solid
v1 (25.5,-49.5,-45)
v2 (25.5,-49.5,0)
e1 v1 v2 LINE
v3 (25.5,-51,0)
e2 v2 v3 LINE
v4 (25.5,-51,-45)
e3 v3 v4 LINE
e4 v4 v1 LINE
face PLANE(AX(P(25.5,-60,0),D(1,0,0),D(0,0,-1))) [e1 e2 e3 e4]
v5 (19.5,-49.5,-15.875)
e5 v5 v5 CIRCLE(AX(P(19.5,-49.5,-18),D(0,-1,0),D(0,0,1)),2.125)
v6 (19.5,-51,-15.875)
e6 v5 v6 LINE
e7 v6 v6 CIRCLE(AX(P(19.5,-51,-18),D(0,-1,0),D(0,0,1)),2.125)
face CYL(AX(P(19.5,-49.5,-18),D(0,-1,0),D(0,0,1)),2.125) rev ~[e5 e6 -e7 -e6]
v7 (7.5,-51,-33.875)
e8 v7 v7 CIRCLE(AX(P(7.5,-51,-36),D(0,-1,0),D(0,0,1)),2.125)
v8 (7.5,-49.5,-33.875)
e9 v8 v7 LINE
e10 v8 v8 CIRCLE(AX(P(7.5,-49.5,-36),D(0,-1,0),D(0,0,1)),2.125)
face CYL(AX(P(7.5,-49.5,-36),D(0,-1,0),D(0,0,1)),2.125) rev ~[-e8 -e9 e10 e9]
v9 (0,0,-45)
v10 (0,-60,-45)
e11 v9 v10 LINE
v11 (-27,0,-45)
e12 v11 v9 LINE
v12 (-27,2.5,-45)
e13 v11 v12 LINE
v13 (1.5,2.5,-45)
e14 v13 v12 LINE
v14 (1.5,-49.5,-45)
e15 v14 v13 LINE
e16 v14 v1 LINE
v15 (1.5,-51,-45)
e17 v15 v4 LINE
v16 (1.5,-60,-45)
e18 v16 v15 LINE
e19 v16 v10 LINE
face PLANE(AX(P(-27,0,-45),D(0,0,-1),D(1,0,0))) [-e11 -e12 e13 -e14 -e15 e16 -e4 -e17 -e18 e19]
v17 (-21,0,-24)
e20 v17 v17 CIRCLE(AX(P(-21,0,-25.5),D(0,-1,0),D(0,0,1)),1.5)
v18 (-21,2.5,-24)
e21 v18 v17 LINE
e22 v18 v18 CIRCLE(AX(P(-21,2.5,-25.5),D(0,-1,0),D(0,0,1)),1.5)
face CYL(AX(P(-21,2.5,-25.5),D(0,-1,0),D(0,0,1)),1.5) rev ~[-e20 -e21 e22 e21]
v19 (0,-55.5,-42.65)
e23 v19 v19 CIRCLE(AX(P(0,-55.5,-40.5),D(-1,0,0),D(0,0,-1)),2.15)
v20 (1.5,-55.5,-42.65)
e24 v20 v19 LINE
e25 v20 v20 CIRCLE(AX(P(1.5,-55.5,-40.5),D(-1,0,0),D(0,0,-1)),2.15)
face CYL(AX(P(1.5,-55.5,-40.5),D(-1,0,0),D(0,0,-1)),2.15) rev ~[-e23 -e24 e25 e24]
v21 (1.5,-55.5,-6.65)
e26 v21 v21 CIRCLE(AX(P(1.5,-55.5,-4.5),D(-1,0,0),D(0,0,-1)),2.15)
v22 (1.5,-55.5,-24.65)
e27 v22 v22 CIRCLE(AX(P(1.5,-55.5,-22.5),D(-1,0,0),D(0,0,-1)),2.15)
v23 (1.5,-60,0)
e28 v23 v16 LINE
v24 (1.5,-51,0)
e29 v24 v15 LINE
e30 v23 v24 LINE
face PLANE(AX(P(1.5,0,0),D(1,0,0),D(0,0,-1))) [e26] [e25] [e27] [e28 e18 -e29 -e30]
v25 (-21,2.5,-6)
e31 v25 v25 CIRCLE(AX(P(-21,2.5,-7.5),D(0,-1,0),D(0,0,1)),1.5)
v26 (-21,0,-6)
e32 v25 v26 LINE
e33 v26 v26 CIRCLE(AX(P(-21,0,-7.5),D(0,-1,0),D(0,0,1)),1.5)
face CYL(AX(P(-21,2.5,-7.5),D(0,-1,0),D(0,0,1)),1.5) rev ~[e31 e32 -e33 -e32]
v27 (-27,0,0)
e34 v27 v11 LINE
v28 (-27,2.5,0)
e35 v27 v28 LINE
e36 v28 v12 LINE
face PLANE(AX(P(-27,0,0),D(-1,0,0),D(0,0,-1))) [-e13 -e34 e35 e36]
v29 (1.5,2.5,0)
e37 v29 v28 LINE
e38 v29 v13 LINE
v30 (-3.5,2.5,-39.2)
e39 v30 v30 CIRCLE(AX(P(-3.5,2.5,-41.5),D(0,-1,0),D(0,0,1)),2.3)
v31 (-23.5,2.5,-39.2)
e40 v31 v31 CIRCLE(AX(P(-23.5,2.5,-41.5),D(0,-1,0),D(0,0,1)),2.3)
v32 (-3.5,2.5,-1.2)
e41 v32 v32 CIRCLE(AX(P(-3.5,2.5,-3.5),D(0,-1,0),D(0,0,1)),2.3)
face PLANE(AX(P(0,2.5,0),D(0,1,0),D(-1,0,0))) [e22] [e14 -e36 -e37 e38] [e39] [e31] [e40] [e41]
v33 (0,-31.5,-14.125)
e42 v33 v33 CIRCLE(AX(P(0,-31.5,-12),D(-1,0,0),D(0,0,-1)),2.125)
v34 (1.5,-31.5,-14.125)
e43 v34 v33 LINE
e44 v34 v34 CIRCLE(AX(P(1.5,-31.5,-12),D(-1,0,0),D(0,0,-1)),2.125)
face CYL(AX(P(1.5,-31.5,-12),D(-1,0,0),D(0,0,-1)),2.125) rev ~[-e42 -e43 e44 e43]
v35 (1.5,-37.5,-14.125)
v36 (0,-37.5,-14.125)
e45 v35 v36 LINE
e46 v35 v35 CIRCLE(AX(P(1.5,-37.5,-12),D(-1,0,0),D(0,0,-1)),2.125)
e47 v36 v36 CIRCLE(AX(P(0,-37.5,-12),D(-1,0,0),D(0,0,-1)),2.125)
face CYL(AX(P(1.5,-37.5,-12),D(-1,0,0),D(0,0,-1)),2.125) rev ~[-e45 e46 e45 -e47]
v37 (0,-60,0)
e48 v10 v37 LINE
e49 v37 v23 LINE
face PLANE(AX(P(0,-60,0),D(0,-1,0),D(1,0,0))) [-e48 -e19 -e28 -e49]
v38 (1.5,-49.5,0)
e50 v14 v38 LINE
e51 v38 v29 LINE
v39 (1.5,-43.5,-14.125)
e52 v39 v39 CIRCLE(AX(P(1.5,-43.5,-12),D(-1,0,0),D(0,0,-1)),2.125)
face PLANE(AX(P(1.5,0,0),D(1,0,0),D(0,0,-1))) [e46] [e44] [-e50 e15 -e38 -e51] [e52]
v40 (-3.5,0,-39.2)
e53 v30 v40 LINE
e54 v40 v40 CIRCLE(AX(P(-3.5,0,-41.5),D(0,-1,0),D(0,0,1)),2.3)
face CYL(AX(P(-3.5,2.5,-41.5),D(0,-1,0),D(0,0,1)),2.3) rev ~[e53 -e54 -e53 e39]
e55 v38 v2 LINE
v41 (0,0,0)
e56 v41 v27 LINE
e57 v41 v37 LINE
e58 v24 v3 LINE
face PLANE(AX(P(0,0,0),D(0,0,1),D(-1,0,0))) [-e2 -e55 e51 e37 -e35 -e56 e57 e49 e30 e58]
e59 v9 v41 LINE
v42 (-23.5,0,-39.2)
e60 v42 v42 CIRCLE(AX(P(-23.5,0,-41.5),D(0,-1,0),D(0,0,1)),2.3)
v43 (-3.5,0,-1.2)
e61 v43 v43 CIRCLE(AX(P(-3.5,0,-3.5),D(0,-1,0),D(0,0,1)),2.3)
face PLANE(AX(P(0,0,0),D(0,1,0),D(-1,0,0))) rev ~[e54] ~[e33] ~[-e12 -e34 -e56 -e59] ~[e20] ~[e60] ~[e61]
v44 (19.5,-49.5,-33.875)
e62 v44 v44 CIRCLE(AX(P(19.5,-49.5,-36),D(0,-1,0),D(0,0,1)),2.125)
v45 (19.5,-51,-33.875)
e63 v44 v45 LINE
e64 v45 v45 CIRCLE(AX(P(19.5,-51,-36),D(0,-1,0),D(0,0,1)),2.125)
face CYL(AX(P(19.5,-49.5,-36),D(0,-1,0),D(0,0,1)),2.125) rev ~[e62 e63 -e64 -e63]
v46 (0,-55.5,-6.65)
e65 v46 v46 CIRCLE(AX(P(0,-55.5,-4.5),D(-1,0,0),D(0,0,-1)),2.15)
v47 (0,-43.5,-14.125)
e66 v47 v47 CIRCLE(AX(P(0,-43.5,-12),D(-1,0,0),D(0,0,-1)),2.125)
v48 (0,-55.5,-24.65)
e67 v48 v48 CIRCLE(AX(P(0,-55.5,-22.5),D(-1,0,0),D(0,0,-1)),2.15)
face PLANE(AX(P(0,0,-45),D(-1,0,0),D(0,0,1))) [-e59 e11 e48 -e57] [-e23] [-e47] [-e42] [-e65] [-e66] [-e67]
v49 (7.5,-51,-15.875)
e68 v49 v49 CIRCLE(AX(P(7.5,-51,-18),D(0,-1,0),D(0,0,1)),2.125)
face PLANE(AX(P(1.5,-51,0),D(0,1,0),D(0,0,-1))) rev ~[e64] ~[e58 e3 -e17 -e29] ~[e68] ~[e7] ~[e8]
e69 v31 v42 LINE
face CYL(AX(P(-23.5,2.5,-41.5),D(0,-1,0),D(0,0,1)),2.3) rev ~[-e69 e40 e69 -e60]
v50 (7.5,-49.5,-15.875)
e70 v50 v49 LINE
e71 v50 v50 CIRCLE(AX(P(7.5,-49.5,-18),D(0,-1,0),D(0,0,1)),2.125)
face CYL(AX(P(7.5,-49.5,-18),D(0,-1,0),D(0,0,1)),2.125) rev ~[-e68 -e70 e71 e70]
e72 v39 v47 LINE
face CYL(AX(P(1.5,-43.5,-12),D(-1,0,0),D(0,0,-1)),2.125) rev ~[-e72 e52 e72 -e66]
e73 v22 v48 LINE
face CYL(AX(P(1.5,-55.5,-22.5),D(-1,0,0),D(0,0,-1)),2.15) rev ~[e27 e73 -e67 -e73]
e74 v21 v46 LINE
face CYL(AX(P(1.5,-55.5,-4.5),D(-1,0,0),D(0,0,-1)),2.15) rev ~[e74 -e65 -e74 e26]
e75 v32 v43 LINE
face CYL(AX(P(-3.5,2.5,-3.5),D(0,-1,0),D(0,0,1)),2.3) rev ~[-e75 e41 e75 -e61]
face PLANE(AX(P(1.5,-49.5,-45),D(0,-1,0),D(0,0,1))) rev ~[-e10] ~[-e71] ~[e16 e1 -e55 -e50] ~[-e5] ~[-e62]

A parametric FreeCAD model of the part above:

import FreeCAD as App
import Part
import Sketcher
Q = App.Units.Quantity

doc = App.newDocument("Part")
body = doc.addObject("PartDesign::Body", "Body")

# Sketch on XZ plane
sketch1 = doc.addObject("Sketcher::SketchObject", "Sketch")
body.addObject(sketch1)
sketch1.AttachmentSupport = (doc.XZ_Plane, [""])
sketch1.MapMode = "FlatFace"
sketch1.addGeometry(Part.LineSegment(App.Vector(-27, 0, 0), App.Vector(0, 0, 0)), False)
sketch1.addGeometry(Part.LineSegment(App.Vector(0, 0, 0), App.Vector(0, -45, 0)), False)
sketch1.addGeometry(Part.LineSegment(App.Vector(0, -45, 0), App.Vector(-27, -45, 0)), False)
sketch1.addGeometry(Part.LineSegment(App.Vector(-27, -45, 0), App.Vector(-27, 0, 0)), False)
sketch1.addConstraint(Sketcher.Constraint("Coincident", 0, 2, 1, 1))
sketch1.addConstraint(Sketcher.Constraint("Coincident", 1, 2, 2, 1))
sketch1.addConstraint(Sketcher.Constraint("Coincident", 2, 2, 3, 1))
sketch1.addConstraint(Sketcher.Constraint("Coincident", 3, 2, 0, 1))
sketch1.addConstraint(Sketcher.Constraint("Horizontal", 0))
sketch1.addConstraint(Sketcher.Constraint("Vertical", 1))
sketch1.addConstraint(Sketcher.Constraint("Horizontal", 2))
sketch1.addConstraint(Sketcher.Constraint("Vertical", 3))
sketch1.addConstraint(Sketcher.Constraint("Coincident", 0, 2, -1, 1))
sketch1.addConstraint(Sketcher.Constraint("DistanceX", 0, 1, 0, 2, Q("27 mm")))
sketch1.addConstraint(Sketcher.Constraint("DistanceY", 1, 2, 1, 1, Q("45 mm")))
pad1 = doc.addObject("PartDesign::Pad", "Pad")
body.addObject(pad1)
pad1.Profile = sketch1
pad1.Length = 2.5
pad1.Reversed = True

# Sketch on XZ plane
sketch2 = doc.addObject("Sketcher::SketchObject", "Sketch001")
body.addObject(sketch2)
sketch2.AttachmentSupport = (doc.XZ_Plane, [""])
sketch2.MapMode = "FlatFace"
sketch2.addGeometry(Part.LineSegment(App.Vector(1.5, 0, 0), App.Vector(0, 0, 0)), False)
sketch2.addGeometry(Part.LineSegment(App.Vector(0, 0, 0), App.Vector(0, -45, 0)), False)
sketch2.addGeometry(Part.LineSegment(App.Vector(0, -45, 0), App.Vector(1.5, -45, 0)), False)
sketch2.addGeometry(Part.LineSegment(App.Vector(1.5, -45, 0), App.Vector(1.5, 0, 0)), False)
sketch2.addConstraint(Sketcher.Constraint("Coincident", 0, 2, 1, 1))
sketch2.addConstraint(Sketcher.Constraint("Coincident", 1, 2, 2, 1))
sketch2.addConstraint(Sketcher.Constraint("Coincident", 2, 2, 3, 1))
sketch2.addConstraint(Sketcher.Constraint("Coincident", 3, 2, 0, 1))
sketch2.addConstraint(Sketcher.Constraint("Horizontal", 0))
sketch2.addConstraint(Sketcher.Constraint("Vertical", 1))
sketch2.addConstraint(Sketcher.Constraint("Horizontal", 2))
sketch2.addConstraint(Sketcher.Constraint("Vertical", 3))
sketch2.addConstraint(Sketcher.Constraint("Coincident", 0, 2, -1, 1))
sketch2.addConstraint(Sketcher.Constraint("DistanceY", 1, 2, 1, 1, Q("45 mm")))
sketch2.addConstraint(Sketcher.Constraint("DistanceX", 0, 2, 0, 1, Q("1.5 mm")))
pad2 = doc.addObject("PartDesign::Pad", "Pad001")
body.addObject(pad2)
pad2.Profile = sketch2
pad2.Type = "TwoLengths"
pad2.Length = 60
pad2.Length2 = 2.5

# Sketch on XZ plane
sketch3 = doc.addObject("Sketcher::SketchObject", "Sketch002")
body.addObject(sketch3)
sketch3.AttachmentSupport = (doc.XZ_Plane, [""])
sketch3.MapMode = "FlatFace"
sketch3.AttachmentOffset = App.Placement(App.Vector(0, 0, -2.5), App.Rotation())
sketch3.addGeometry(Part.Circle(App.Vector(-3.5, -3.5, 0), App.Vector(0, 0, 1), 2.3), False)
sketch3.addGeometry(Part.Circle(App.Vector(-3.5, -41.5, 0), App.Vector(0, 0, 1), 2.3), False)
sketch3.addGeometry(Part.Circle(App.Vector(-23.5, -41.5, 0), App.Vector(0, 0, 1), 2.3), False)
sketch3.addConstraint(Sketcher.Constraint("Equal", 0, 1))
sketch3.addConstraint(Sketcher.Constraint("Equal", 1, 2))
sketch3.addConstraint(Sketcher.Constraint("Horizontal", 1, 3, 2, 3))
sketch3.addConstraint(Sketcher.Constraint("Vertical", 0, 3, 1, 3))
sketch3.addConstraint(Sketcher.Constraint("Diameter", 0, Q("4.6 mm")))
sketch3.addConstraint(Sketcher.Constraint("DistanceY", 1, 3, 0, 3, Q("38 mm")))
sketch3.addConstraint(Sketcher.Constraint("DistanceX", 2, 3, 1, 3, Q("20 mm")))
sketch3.addConstraint(Sketcher.Constraint("DistanceX", 0, 3, -1, 1, Q("3.5 mm")))
sketch3.addConstraint(Sketcher.Constraint("DistanceY", 0, 3, -1, 1, Q("3.5 mm")))
doc.recompute()
hole = doc.addObject("PartDesign::Hole", "Hole")
body.addObject(hole)
hole.Profile = sketch3
hole.ThreadType = "None"
hole.Diameter = 4.6
hole.DepthType = "ThroughAll"
hole.Reversed = True

# Sketch on XZ plane
sketch4 = doc.addObject("Sketcher::SketchObject", "Sketch003")
body.addObject(sketch4)
sketch4.AttachmentSupport = (doc.XZ_Plane, [""])
sketch4.MapMode = "FlatFace"
sketch4.AttachmentOffset = App.Placement(App.Vector(0, 0, -2.5), App.Rotation())
sketch4.addGeometry(Part.Circle(App.Vector(-21, -7.5, 0), App.Vector(0, 0, 1), 1.5), False)
sketch4.addGeometry(Part.Circle(App.Vector(-21, -25.5, 0), App.Vector(0, 0, 1), 1.5), False)
sketch4.addConstraint(Sketcher.Constraint("Equal", 0, 1))
sketch4.addConstraint(Sketcher.Constraint("Vertical", 0, 3, 1, 3))
sketch4.addConstraint(Sketcher.Constraint("Diameter", 0, Q("3 mm")))
sketch4.addConstraint(Sketcher.Constraint("DistanceX", 0, 3, -1, 1, Q("21 mm")))
sketch4.addConstraint(Sketcher.Constraint("DistanceY", 1, 3, 0, 3, Q("18 mm")))
sketch4.addConstraint(Sketcher.Constraint("DistanceY", 0, 3, -1, 1, Q("7.5 mm")))
doc.recompute()
hole2 = doc.addObject("PartDesign::Hole", "Hole001")
body.addObject(hole2)
hole2.Profile = sketch4
hole2.ThreadType = "None"
hole2.Diameter = 3
hole2.DepthType = "ThroughAll"
hole2.Reversed = True

# Sketch on YZ plane
sketch5 = doc.addObject("Sketcher::SketchObject", "Sketch004")
body.addObject(sketch5)
sketch5.AttachmentSupport = (doc.YZ_Plane, [""])
sketch5.MapMode = "FlatFace"
sketch5.AttachmentOffset = App.Placement(App.Vector(0, 0, 1.5), App.Rotation())
sketch5.addGeometry(Part.Circle(App.Vector(-55.5, -4.5, 0), App.Vector(0, 0, 1), 2.15), False)
sketch5.addGeometry(Part.Circle(App.Vector(-55.5, -22.5, 0), App.Vector(0, 0, 1), 2.15), False)
sketch5.addGeometry(Part.Circle(App.Vector(-55.5, -40.5, 0), App.Vector(0, 0, 1), 2.15), False)
sketch5.addConstraint(Sketcher.Constraint("Equal", 0, 1))
sketch5.addConstraint(Sketcher.Constraint("Equal", 1, 2))
sketch5.addConstraint(Sketcher.Constraint("Vertical", 0, 3, 1, 3))
sketch5.addConstraint(Sketcher.Constraint("Vertical", 1, 3, 2, 3))
sketch5.addConstraint(Sketcher.Constraint("Diameter", 0, Q("4.3 mm")))
sketch5.addConstraint(Sketcher.Constraint("DistanceY", 1, 3, 0, 3, Q("18 mm")))
sketch5.addConstraint(Sketcher.Constraint("DistanceY", 2, 3, 1, 3, Q("18 mm")))
sketch5.addConstraint(Sketcher.Constraint("DistanceX", 0, 3, -1, 1, Q("55.5 mm")))
sketch5.addConstraint(Sketcher.Constraint("DistanceY", 0, 3, -1, 1, Q("4.5 mm")))
doc.recompute()
hole3 = doc.addObject("PartDesign::Hole", "Hole002")
body.addObject(hole3)
hole3.Profile = sketch5
hole3.ThreadType = "None"
hole3.Diameter = 4.3
hole3.DepthType = "ThroughAll"

# Sketch on YZ plane
sketch6 = doc.addObject("Sketcher::SketchObject", "Sketch005")
body.addObject(sketch6)
sketch6.AttachmentSupport = (doc.YZ_Plane, [""])
sketch6.MapMode = "FlatFace"
sketch6.AttachmentOffset = App.Placement(App.Vector(0, 0, 1.5), App.Rotation())
sketch6.addGeometry(Part.LineSegment(App.Vector(-49.5, 0, 0), App.Vector(-51, 0, 0)), False)
sketch6.addGeometry(Part.LineSegment(App.Vector(-51, 0, 0), App.Vector(-51, -45, 0)), False)
sketch6.addGeometry(Part.LineSegment(App.Vector(-51, -45, 0), App.Vector(-49.5, -45, 0)), False)
sketch6.addGeometry(Part.LineSegment(App.Vector(-49.5, -45, 0), App.Vector(-49.5, 0, 0)), False)
sketch6.addConstraint(Sketcher.Constraint("Coincident", 0, 2, 1, 1))
sketch6.addConstraint(Sketcher.Constraint("Coincident", 1, 2, 2, 1))
sketch6.addConstraint(Sketcher.Constraint("Coincident", 2, 2, 3, 1))
sketch6.addConstraint(Sketcher.Constraint("Coincident", 3, 2, 0, 1))
sketch6.addConstraint(Sketcher.Constraint("Horizontal", 0))
sketch6.addConstraint(Sketcher.Constraint("Vertical", 1))
sketch6.addConstraint(Sketcher.Constraint("Horizontal", 2))
sketch6.addConstraint(Sketcher.Constraint("Vertical", 3))
sketch6.addConstraint(Sketcher.Constraint("PointOnObject", 0, 2, -1))
sketch6.addConstraint(Sketcher.Constraint("DistanceY", 1, 2, 1, 1, Q("45 mm")))
sketch6.addConstraint(Sketcher.Constraint("DistanceX", 0, 2, 0, 1, Q("1.5 mm")))
sketch6.addConstraint(Sketcher.Constraint("DistanceX", 0, 2, -1, 1, Q("51 mm")))
pad3 = doc.addObject("PartDesign::Pad", "Pad002")
body.addObject(pad3)
pad3.Profile = sketch6
pad3.Length = 24

# Sketch on XZ plane
sketch7 = doc.addObject("Sketcher::SketchObject", "Sketch006")
body.addObject(sketch7)
sketch7.AttachmentSupport = (doc.XZ_Plane, [""])
sketch7.MapMode = "FlatFace"
sketch7.AttachmentOffset = App.Placement(App.Vector(0, 0, 49.5), App.Rotation())
sketch7.addGeometry(Part.Circle(App.Vector(7.5, -18, 0), App.Vector(0, 0, 1), 2.125), False)
sketch7.addGeometry(Part.Circle(App.Vector(7.5, -36, 0), App.Vector(0, 0, 1), 2.125), False)
sketch7.addGeometry(Part.Circle(App.Vector(19.5, -36, 0), App.Vector(0, 0, 1), 2.125), False)
sketch7.addGeometry(Part.Circle(App.Vector(19.5, -18, 0), App.Vector(0, 0, 1), 2.125), False)
sketch7.addConstraint(Sketcher.Constraint("Equal", 0, 1))
sketch7.addConstraint(Sketcher.Constraint("Equal", 1, 2))
sketch7.addConstraint(Sketcher.Constraint("Equal", 2, 3))
sketch7.addConstraint(Sketcher.Constraint("Horizontal", 1, 3, 2, 3))
sketch7.addConstraint(Sketcher.Constraint("Horizontal", 0, 3, 3, 3))
sketch7.addConstraint(Sketcher.Constraint("Vertical", 0, 3, 1, 3))
sketch7.addConstraint(Sketcher.Constraint("Vertical", 2, 3, 3, 3))
sketch7.addConstraint(Sketcher.Constraint("Diameter", 0, Q("4.25 mm")))
sketch7.addConstraint(Sketcher.Constraint("DistanceY", 0, 3, -1, 1, Q("18 mm")))
sketch7.addConstraint(Sketcher.Constraint("DistanceY", 1, 3, -1, 1, Q("36 mm")))
sketch7.addConstraint(Sketcher.Constraint("DistanceX", 1, 3, 2, 3, Q("12 mm")))
sketch7.addConstraint(Sketcher.Constraint("DistanceX", -1, 1, 0, 3, Q("7.5 mm")))
doc.recompute()
hole4 = doc.addObject("PartDesign::Hole", "Hole003")
body.addObject(hole4)
hole4.Profile = sketch7
hole4.ThreadType = "None"
hole4.Diameter = 4.25
hole4.DepthType = "ThroughAll"
hole4.Reversed = True

# Sketch on YZ plane
sketch8 = doc.addObject("Sketcher::SketchObject", "Sketch007")
body.addObject(sketch8)
sketch8.AttachmentSupport = (doc.YZ_Plane, [""])
sketch8.MapMode = "FlatFace"
sketch8.AttachmentOffset = App.Placement(App.Vector(0, 0, 1.5), App.Rotation())
sketch8.addGeometry(Part.Circle(App.Vector(-31.5, -12, 0), App.Vector(0, 0, 1), 2.125), False)
sketch8.addGeometry(Part.Circle(App.Vector(-37.5, -12, 0), App.Vector(0, 0, 1), 2.125), False)
sketch8.addGeometry(Part.Circle(App.Vector(-43.5, -12, 0), App.Vector(0, 0, 1), 2.125), False)
sketch8.addConstraint(Sketcher.Constraint("Equal", 0, 1))
sketch8.addConstraint(Sketcher.Constraint("Equal", 1, 2))
sketch8.addConstraint(Sketcher.Constraint("Horizontal", 0, 3, 1, 3))
sketch8.addConstraint(Sketcher.Constraint("Horizontal", 1, 3, 2, 3))
sketch8.addConstraint(Sketcher.Constraint("Diameter", 0, Q("4.25 mm")))
sketch8.addConstraint(Sketcher.Constraint("DistanceY", 0, 3, -1, 1, Q("12 mm")))
sketch8.addConstraint(Sketcher.Constraint("DistanceX", 1, 3, 0, 3, Q("6 mm")))
sketch8.addConstraint(Sketcher.Constraint("DistanceX", 2, 3, 1, 3, Q("6 mm")))
sketch8.addConstraint(Sketcher.Constraint("DistanceX", 0, 3, -1, 1, Q("31.5 mm")))
doc.recompute()
hole5 = doc.addObject("PartDesign::Hole", "Hole004")
body.addObject(hole5)
hole5.Profile = sketch8
hole5.ThreadType = "None"
hole5.Diameter = 4.25
hole5.DepthType = "Dimension"
hole5.Depth = 8
hole5.DrillPoint = "Angled"
hole5.DrillPointAngle = 118

doc.recompute()
